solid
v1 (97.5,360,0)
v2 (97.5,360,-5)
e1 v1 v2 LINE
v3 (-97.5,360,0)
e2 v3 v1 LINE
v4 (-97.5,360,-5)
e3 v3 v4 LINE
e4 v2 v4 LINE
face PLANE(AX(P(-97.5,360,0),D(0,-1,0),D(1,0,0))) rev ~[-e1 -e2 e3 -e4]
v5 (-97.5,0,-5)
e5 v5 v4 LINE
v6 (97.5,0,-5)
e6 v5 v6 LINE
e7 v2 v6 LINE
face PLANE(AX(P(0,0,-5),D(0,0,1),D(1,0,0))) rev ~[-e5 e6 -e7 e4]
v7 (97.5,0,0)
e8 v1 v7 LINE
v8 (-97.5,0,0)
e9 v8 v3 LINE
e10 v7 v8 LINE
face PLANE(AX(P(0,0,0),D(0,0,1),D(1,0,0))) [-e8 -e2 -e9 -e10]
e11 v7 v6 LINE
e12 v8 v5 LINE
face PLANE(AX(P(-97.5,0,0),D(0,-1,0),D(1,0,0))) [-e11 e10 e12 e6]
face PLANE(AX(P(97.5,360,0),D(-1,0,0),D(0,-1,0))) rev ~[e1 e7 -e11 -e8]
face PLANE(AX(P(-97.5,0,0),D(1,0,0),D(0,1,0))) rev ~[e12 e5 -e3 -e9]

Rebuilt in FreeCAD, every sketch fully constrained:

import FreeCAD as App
import Part
import Sketcher


def add_polygon(sketch, points):
    """Adds a closed chain of lines whose ends are joined by coincident constraints."""
    first, n = sketch.GeometryCount, len(points)
    for a, b in zip(points, points[1:] + points[:1]):
        sketch.addGeometry(Part.LineSegment(App.Vector(*a, 0), App.Vector(*b, 0)), False)
    for i in range(n):
        sketch.addConstraint(Sketcher.Constraint("Coincident", first + i, 2, first + (i + 1) % n, 1))

doc = App.newDocument("Part")
body = doc.addObject("PartDesign::Body", "Body")

sketch1 = body.newObject("Sketcher::SketchObject", "Sketch")
sketch1.AttachmentSupport = (doc.getObject("XY_Plane"), [""])
sketch1.MapMode = "FlatFace"
add_polygon(sketch1, [(-97.5, 360), (-97.5, 0), (97.5, 0), (97.5, 360)])
sketch1.addConstraint([
    Sketcher.Constraint("Vertical", 0),
    Sketcher.Constraint("Horizontal", 1),
    Sketcher.Constraint("Vertical", 2),
    Sketcher.Constraint("Horizontal", 3),
    Sketcher.Constraint("Symmetric", 0, 2, 1, 2, -1, 1),
    Sketcher.Constraint("DistanceX", 1, 1, 1, 2, 195.0),
    Sketcher.Constraint("DistanceY", 0, 2, 0, 1, 360.0),
])
pad1 = body.newObject("PartDesign::Pad", "Pad")
pad1.Profile = sketch1
pad1.Length = 5
pad1.Reversed = True

doc.recompute()
